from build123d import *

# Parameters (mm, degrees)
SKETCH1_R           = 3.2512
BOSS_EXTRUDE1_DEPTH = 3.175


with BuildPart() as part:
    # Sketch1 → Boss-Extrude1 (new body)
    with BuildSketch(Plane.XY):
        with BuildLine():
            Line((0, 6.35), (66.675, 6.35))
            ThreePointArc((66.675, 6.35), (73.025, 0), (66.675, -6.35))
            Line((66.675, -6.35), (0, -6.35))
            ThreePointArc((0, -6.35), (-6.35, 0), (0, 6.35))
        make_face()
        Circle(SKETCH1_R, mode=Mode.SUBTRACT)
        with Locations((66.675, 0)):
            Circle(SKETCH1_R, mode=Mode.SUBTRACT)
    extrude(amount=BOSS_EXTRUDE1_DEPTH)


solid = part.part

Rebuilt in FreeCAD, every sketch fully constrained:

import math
import FreeCAD as App
import Part
import Sketcher

V = App.Vector
Q = App.Units.Quantity

doc = App.newDocument("Part")
body = doc.addObject("PartDesign::Body", "Body")

# Sketch on XY plane
sketch1 = body.newObject("Sketcher::SketchObject", "Sketch")
sketch1.AttachmentSupport = (doc.getObject("XY_Plane"), [""])
sketch1.MapMode = "FlatFace"
sketch1.addGeometry(Part.LineSegment(V(66.7, 6.3, 0), V(0, 6.3, 0)), False)
sketch1.addGeometry(Part.ArcOfCircle(Part.Circle(V(0, 0, 0), V(0, 0, 1), 6.3), math.radians(90), math.radians(270)), False)
sketch1.addGeometry(Part.LineSegment(V(0, -6.3, 0), V(66.7, -6.3, 0)), False)
sketch1.addGeometry(Part.ArcOfCircle(Part.Circle(V(66.7, 0, 0), V(0, 0, 1), 6.3), math.radians(-90), math.radians(90)), False)
sketch1.addGeometry(Part.Circle(V(66.7, 0, 0), V(0, 0, 1), 3.3), False)
sketch1.addGeometry(Part.Circle(V(0, 0, 0), V(0, 0, 1), 3.3), False)
sketch1.addConstraint(Sketcher.Constraint("Tangent", 0, 2, 1, 1))
sketch1.addConstraint(Sketcher.Constraint("Tangent", 1, 2, 2, 1))
sketch1.addConstraint(Sketcher.Constraint("Tangent", 2, 2, 3, 1))
sketch1.addConstraint(Sketcher.Constraint("Tangent", 3, 2, 0, 1))
sketch1.addConstraint(Sketcher.Constraint("Horizontal", 0))
sketch1.addConstraint(Sketcher.Constraint("Horizontal", 2))
sketch1.addConstraint(Sketcher.Constraint("Coincident", 1, 3, -1, 1))
sketch1.addConstraint(Sketcher.Constraint("Coincident", 5, 3, -1, 1))
sketch1.addConstraint(Sketcher.Constraint("Coincident", 4, 3, 3, 3))
sketch1.addConstraint(Sketcher.Constraint("Equal", 4, 5))
sketch1.addConstraint(Sketcher.Constraint("Radius", 1, Q("0.25 in")))
sketch1.addConstraint(Sketcher.Constraint("Diameter", 4, Q("0.256 in")))
sketch1.addConstraint(Sketcher.Constraint("DistanceX", 0, 2, 0, 1, Q("2.625 in")))
pad1 = body.newObject("PartDesign::Pad", "Pad")
pad1.Profile = sketch1
pad1.Length = Q("0.125 in")

doc.recompute()
